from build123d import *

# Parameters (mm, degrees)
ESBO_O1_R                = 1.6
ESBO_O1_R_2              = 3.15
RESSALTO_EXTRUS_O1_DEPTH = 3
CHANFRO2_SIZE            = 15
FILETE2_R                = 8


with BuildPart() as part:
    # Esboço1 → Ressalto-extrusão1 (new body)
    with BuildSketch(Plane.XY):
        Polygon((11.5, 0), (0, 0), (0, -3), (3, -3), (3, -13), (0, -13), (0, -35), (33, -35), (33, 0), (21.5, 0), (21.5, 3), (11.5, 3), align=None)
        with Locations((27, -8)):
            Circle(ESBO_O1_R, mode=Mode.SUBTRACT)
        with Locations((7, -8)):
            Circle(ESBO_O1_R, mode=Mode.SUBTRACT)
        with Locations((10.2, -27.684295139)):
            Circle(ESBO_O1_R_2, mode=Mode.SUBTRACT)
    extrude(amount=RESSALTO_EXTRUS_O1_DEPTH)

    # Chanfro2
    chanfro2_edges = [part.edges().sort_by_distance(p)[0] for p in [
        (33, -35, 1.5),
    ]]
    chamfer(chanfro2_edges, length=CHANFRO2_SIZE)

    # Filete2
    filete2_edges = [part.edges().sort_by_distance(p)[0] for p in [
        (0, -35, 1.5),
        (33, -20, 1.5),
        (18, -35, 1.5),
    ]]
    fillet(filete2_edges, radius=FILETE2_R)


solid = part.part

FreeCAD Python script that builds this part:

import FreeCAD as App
import Part
import Sketcher
from FreeCAD import Vector


def edges_at(feature, points):
    """Names of the edges that pass closest to the given points."""
    edges = feature.Shape.Edges
    near = lambda p: min(range(len(edges)), key=lambda i: edges[i].distToShape(Part.Vertex(*p))[0])
    return sorted({f"Edge{near(p) + 1}" for p in points})

doc = App.newDocument("Part")
body = doc.addObject("PartDesign::Body", "Body")

# Sketch on XY plane
sketch1 = body.newObject("Sketcher::SketchObject", "Sketch")
sketch1.AttachmentSupport = (doc.getObject("XY_Plane"), [""])
sketch1.MapMode = "FlatFace"
sketch1.addGeometry([
    Part.LineSegment(Vector(11.5, 0, 0), Vector(0, 0, 0)),  # 0
    Part.LineSegment(Vector(0, 0, 0), Vector(0, -3, 0)),  # 1
    Part.LineSegment(Vector(0, -3, 0), Vector(3, -3, 0)),  # 2
    Part.LineSegment(Vector(3, -3, 0), Vector(3, -13, 0)),  # 3
    Part.LineSegment(Vector(3, -13, 0), Vector(0, -13, 0)),  # 4
    Part.LineSegment(Vector(0, -13, 0), Vector(0, -35, 0)),  # 5
    Part.LineSegment(Vector(0, -35, 0), Vector(33, -35, 0)),  # 6
    Part.LineSegment(Vector(33, -35, 0), Vector(33, 0, 0)),  # 7
    Part.LineSegment(Vector(33, 0, 0), Vector(21.5, 0, 0)),  # 8
    Part.LineSegment(Vector(21.5, 0, 0), Vector(21.5, 3, 0)),  # 9
    Part.LineSegment(Vector(21.5, 3, 0), Vector(11.5, 3, 0)),  # 10
    Part.LineSegment(Vector(11.5, 3, 0), Vector(11.5, 0, 0)),  # 11
    Part.Circle(Vector(10.2, -27.684295, 0), Vector(0, 0, 1), 3.15),  # 12
    Part.Circle(Vector(7, -8, 0), Vector(0, 0, 1), 1.6),  # 13
    Part.Circle(Vector(27, -8, 0), Vector(0, 0, 1), 1.6),  # 14
], False)
sketch1.addConstraint([
    Sketcher.Constraint("Coincident", 0, 2, 1, 1),
    Sketcher.Constraint("Coincident", 1, 2, 2, 1),
    Sketcher.Constraint("Coincident", 2, 2, 3, 1),
    Sketcher.Constraint("Coincident", 3, 2, 4, 1),
    Sketcher.Constraint("Coincident", 4, 2, 5, 1),
    Sketcher.Constraint("Coincident", 5, 2, 6, 1),
    Sketcher.Constraint("Coincident", 6, 2, 7, 1),
    Sketcher.Constraint("Coincident", 7, 2, 8, 1),
    Sketcher.Constraint("Coincident", 8, 2, 9, 1),
    Sketcher.Constraint("Coincident", 9, 2, 10, 1),
    Sketcher.Constraint("Coincident", 10, 2, 11, 1),
    Sketcher.Constraint("Coincident", 11, 2, 0, 1),
    Sketcher.Constraint("Horizontal", 0),
    Sketcher.Constraint("Vertical", 1),
    Sketcher.Constraint("Horizontal", 2),
    Sketcher.Constraint("Vertical", 3),
    Sketcher.Constraint("Horizontal", 4),
    Sketcher.Constraint("Vertical", 5),
    Sketcher.Constraint("Horizontal", 6),
    Sketcher.Constraint("Vertical", 7),
    Sketcher.Constraint("Horizontal", 8),
    Sketcher.Constraint("Vertical", 9),
    Sketcher.Constraint("Horizontal", 10),
    Sketcher.Constraint("Vertical", 11),
    Sketcher.Constraint("Coincident", 0, 2, -1, 1),
    Sketcher.Constraint("Equal", 13, 14),
    Sketcher.Constraint("PointOnObject", 4, 2, -2),
    Sketcher.Constraint("PointOnObject", 7, 2, -1),
    Sketcher.Constraint("Horizontal", 13, 3, 14, 3),
    Sketcher.Constraint("Equal", 0, 8),
    Sketcher.Constraint("Equal", 4, 1),
    Sketcher.Constraint("Equal", 10, 3),
    Sketcher.Constraint("Equal", 1, 9),
    Sketcher.Constraint("Diameter", 12, 6.3),
    Sketcher.Constraint("Diameter", 13, 3.2),
    Sketcher.Constraint("DistanceX", 2, 1, 2, 2, 3.0),
    Sketcher.Constraint("DistanceX", 6, 1, 6, 2, 33.0),
    Sketcher.Constraint("DistanceX", 10, 2, 10, 1, 10.0),
    Sketcher.Constraint("DistanceY", 5, 2, 5, 1, 22.0),
    Sketcher.Constraint("DistanceX", -1, 1, 13, 3, 7.0),
    Sketcher.Constraint("DistanceY", 13, 3, -1, 1, 8.0),
    Sketcher.Constraint("DistanceX", -1, 1, 14, 3, 27.0),
    Sketcher.Constraint("DistanceX", -1, 1, 12, 3, 10.2),
    Sketcher.Constraint("DistanceY", 12, 3, -1, 1, 27.684295),
])
pad1 = body.newObject("PartDesign::Pad", "Pad")
pad1.Profile = sketch1
pad1.Length = 3
doc.recompute()

chamfer = body.newObject("PartDesign::Chamfer", "Chamfer")
chamfer.Base = (pad1, edges_at(pad1, [(33, -35, 1.5)]))
chamfer.Size = 15
doc.recompute()

fillet = body.newObject("PartDesign::Fillet", "Fillet")
fillet.Base = (chamfer, edges_at(chamfer, [(0, -35, 1.5), (33, -20, 1.5), (18, -35, 1.5)]))
fillet.Radius = 8

doc.recompute()
